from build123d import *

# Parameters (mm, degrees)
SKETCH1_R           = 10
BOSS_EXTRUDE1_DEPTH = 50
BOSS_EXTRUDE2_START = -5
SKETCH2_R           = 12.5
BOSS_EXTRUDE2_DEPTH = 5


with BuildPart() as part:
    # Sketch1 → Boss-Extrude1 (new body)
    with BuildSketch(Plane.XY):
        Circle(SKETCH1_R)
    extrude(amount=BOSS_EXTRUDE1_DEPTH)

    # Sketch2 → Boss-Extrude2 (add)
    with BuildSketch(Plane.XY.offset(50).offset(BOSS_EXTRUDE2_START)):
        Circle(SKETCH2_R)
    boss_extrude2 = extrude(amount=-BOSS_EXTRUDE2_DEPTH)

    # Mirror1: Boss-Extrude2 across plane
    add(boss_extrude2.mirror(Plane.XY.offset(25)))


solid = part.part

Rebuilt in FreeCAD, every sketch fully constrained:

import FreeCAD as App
import Part
import Sketcher

doc = App.newDocument("Part")
params = doc.addObject("Spreadsheet::Sheet", "Params")
for row, (alias, value) in enumerate([
    ("sketch1_diameter", "20 mm"),
    ("pad1_length", "50 mm"),
    ("sketch2_diameter", "25 mm"),
    ("pad2_length", "5 mm"),
], start=1):
    params.set(f"A{row}", alias)
    params.set(f"B{row}", "=" + value)
    params.setAlias(f"B{row}", alias)

body = doc.addObject("PartDesign::Body", "Body")

sketch1 = doc.addObject("Sketcher::SketchObject", "Sketch")
body.addObject(sketch1)
sketch1.AttachmentSupport = (doc.XY_Plane, [""])
sketch1.MapMode = "FlatFace"
sketch1.addGeometry(Part.Circle(App.Vector(0, 0, 0), App.Vector(0, 0, 1), 10), False)
sketch1.addConstraint(Sketcher.Constraint("Coincident", 0, 3, -1, 1))
sketch1.addConstraint(Sketcher.Constraint("Diameter", 0, 20.0))
sketch1.setExpression("Constraints[1]", "Params.sketch1_diameter")
pad1 = doc.addObject("PartDesign::Pad", "Pad")
body.addObject(pad1)
pad1.Profile = sketch1
pad1.setExpression("Length", "Params.pad1_length")

sketch2 = doc.addObject("Sketcher::SketchObject", "Sketch001")
body.addObject(sketch2)
sketch2.AttachmentSupport = (doc.XY_Plane, [""])
sketch2.MapMode = "FlatFace"
sketch2.AttachmentOffset = App.Placement(App.Vector(0, 0, 45), App.Rotation())
sketch2.addGeometry(Part.Circle(App.Vector(0, 0, 0), App.Vector(0, 0, 1), 12.5), False)
sketch2.addConstraint(Sketcher.Constraint("Coincident", 0, 3, -1, 1))
sketch2.addConstraint(Sketcher.Constraint("Diameter", 0, 25.0))
sketch2.setExpression("Constraints[1]", "Params.sketch2_diameter")
pad2 = doc.addObject("PartDesign::Pad", "Pad001")
body.addObject(pad2)
pad2.Profile = sketch2
pad2.setExpression("Length", "Params.pad2_length")
pad2.Reversed = True
doc.recompute()

datumplane = doc.addObject("PartDesign::Plane", "DatumPlane")
body.addObject(datumplane)
datumplane.AttachmentSupport = (doc.XY_Plane, [""])
datumplane.MapMode = "FlatFace"
datumplane.AttachmentOffset = App.Placement(App.Vector(0, 0, 25), App.Rotation())
mirrored = doc.addObject("PartDesign::Mirrored", "Mirrored")
body.addObject(mirrored)
mirrored.Originals = [pad2]
mirrored.MirrorPlane = (datumplane, [""])
body.Tip = mirrored

doc.recompute()
